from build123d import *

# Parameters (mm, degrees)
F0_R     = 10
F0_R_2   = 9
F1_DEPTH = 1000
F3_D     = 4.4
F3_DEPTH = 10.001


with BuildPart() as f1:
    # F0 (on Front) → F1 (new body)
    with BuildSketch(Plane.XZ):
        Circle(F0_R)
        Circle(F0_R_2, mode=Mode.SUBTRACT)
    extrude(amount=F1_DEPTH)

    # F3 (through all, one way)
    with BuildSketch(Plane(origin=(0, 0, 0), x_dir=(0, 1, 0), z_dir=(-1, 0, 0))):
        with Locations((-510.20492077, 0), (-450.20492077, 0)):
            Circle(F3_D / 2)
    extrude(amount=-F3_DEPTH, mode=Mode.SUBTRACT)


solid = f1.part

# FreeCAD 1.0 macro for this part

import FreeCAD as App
import Part
import Sketcher

V = App.Vector

doc = App.newDocument("Part")
body = doc.addObject("PartDesign::Body", "Body")

# Sketch on XZ plane
sketch1 = body.newObject("Sketcher::SketchObject", "Sketch")
sketch1.AttachmentSupport = (doc.getObject("XZ_Plane"), [""])
sketch1.MapMode = "FlatFace"
sketch1.addGeometry([
    Part.Circle(V(0, 0, 0), V(0, 0, 1), 10),
    Part.Circle(V(0, 0, 0), V(0, 0, 1), 9),
], False)
sketch1.addConstraint([
    Sketcher.Constraint("Coincident", 0, 3, -1, 1),
    Sketcher.Constraint("Coincident", 1, 3, -1, 1),
    Sketcher.Constraint("Diameter", 0, 20.0),
    Sketcher.Constraint("Diameter", 1, 18.0),
])
pad1 = body.newObject("PartDesign::Pad", "Pad")
pad1.Profile = sketch1
pad1.Length = 1000

# Sketch on YZ plane
sketch2 = body.newObject("Sketcher::SketchObject", "Sketch001")
sketch2.AttachmentSupport = (doc.getObject("YZ_Plane"), [""])
sketch2.MapMode = "FlatFace"
sketch2.addGeometry([
    Part.Circle(V(-450.2, 0, 0), V(0, 0, 1), 2.2),
    Part.Circle(V(-510.2, 0, 0), V(0, 0, 1), 2.2),
], False)
sketch2.addConstraint([
    Sketcher.Constraint("Equal", 0, 1),
    Sketcher.Constraint("PointOnObject", 0, 3, -1),
    Sketcher.Constraint("PointOnObject", 1, 3, -1),
    Sketcher.Constraint("Diameter", 0, 4.4),
    Sketcher.Constraint("DistanceX", 1, 3, 0, 3, 60.0),
    Sketcher.Constraint("DistanceX", 0, 3, -1, 1, 450.204921),
])
pocket1 = body.newObject("PartDesign::Pocket", "Pocket")
pocket1.Profile = sketch2
pocket1.Type = "ThroughAll"
pocket1.Reversed = True

doc.recompute()
